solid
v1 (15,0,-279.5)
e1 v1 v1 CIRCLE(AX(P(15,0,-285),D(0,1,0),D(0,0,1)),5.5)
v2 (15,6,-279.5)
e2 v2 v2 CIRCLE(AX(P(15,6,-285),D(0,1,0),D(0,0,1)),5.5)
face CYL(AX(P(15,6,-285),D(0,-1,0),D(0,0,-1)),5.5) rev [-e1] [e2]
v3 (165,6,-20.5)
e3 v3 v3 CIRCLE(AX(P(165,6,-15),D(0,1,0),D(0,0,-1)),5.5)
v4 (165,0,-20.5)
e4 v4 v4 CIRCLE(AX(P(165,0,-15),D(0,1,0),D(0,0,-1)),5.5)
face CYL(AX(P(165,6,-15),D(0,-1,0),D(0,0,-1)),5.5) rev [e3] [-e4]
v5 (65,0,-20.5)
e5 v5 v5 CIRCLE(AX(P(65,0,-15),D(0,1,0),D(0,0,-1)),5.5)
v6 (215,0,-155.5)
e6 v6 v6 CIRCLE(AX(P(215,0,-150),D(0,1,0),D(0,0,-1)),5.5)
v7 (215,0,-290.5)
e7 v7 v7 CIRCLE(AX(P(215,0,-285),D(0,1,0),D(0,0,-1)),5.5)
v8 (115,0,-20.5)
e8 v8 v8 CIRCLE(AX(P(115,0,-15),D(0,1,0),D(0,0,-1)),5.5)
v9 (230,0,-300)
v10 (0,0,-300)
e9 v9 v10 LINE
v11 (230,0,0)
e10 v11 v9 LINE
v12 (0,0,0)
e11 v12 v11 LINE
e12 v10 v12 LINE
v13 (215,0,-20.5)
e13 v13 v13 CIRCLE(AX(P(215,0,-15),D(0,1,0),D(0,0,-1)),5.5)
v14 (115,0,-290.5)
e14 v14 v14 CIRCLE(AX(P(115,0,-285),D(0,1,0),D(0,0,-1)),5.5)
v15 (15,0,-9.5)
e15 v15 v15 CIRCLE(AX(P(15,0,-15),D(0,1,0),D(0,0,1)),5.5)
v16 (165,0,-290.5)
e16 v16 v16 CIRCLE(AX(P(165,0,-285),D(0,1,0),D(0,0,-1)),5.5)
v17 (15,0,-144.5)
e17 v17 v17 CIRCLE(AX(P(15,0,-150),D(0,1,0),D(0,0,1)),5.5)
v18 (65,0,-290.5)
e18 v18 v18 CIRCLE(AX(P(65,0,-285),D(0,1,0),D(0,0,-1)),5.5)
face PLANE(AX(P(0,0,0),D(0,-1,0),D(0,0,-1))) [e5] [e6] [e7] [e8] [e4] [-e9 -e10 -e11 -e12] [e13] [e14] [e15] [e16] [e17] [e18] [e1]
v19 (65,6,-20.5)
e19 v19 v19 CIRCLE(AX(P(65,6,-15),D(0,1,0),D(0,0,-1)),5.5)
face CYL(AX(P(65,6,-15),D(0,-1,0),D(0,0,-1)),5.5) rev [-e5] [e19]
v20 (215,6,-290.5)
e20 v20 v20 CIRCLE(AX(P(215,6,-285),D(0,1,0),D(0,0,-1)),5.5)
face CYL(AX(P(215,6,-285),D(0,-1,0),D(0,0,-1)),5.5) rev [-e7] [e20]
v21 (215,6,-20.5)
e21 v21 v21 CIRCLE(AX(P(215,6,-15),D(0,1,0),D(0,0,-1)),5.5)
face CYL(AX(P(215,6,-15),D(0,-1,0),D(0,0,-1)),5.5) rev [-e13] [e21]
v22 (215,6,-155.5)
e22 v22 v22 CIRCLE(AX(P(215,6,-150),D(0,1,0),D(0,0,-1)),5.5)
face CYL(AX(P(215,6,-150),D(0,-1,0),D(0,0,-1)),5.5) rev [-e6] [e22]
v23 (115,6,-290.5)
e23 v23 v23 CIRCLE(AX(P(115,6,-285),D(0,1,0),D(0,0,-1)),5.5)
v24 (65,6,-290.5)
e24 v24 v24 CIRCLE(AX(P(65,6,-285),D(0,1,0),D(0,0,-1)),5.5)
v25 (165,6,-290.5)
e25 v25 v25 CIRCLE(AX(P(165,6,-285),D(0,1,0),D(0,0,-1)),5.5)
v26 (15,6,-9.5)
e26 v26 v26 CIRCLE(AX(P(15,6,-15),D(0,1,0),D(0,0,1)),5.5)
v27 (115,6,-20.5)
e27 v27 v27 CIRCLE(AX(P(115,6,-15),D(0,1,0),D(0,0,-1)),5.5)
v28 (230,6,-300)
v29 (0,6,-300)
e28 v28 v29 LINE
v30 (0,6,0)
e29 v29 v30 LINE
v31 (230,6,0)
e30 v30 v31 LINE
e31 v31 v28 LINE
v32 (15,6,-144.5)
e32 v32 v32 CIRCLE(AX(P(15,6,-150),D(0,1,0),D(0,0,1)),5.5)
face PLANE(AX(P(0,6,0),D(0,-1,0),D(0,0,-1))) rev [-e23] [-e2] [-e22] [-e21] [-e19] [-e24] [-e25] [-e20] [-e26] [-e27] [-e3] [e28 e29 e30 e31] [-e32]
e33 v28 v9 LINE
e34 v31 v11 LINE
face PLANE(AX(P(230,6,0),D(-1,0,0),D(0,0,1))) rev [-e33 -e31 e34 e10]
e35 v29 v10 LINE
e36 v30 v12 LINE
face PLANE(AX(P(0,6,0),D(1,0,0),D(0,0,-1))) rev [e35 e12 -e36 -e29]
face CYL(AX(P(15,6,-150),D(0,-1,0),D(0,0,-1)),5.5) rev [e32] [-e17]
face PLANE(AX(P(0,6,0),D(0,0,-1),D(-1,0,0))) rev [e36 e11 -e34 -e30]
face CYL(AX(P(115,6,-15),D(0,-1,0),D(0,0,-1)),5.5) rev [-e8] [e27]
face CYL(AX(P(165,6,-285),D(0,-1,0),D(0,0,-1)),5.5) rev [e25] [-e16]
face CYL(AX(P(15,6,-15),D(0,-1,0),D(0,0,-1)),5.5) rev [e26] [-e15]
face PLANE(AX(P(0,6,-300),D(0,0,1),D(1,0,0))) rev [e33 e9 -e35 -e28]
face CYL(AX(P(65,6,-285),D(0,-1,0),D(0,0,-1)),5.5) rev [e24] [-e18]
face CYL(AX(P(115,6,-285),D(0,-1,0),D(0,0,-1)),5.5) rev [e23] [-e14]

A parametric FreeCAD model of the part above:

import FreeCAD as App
import Part
import Sketcher

V = App.Vector
Q = App.Units.Quantity

doc = App.newDocument("Part")
body = doc.addObject("PartDesign::Body", "Body")

sketch1 = body.newObject("Sketcher::SketchObject", "Sketch")
sketch1.AttachmentSupport = (doc.getObject("XZ_Plane"), [""])
sketch1.MapMode = "FlatFace"
sketch1.addGeometry(Part.LineSegment(V(0, -300, 0), V(0, 0, 0)), False)
sketch1.addGeometry(Part.LineSegment(V(0, 0, 0), V(230, 0, 0)), False)
sketch1.addGeometry(Part.LineSegment(V(230, 0, 0), V(230, -300, 0)), False)
sketch1.addGeometry(Part.LineSegment(V(230, -300, 0), V(0, -300, 0)), False)
sketch1.addGeometry(Part.Circle(V(15, -15, 0), V(0, 0, 1), 6), False)
sketch1.addGeometry(Part.Circle(V(65, -15, 0), V(0, 0, 1), 6), False)
sketch1.addGeometry(Part.Circle(V(115, -15, 0), V(0, 0, 1), 6), False)
sketch1.addGeometry(Part.Circle(V(165, -15, 0), V(0, 0, 1), 6), False)
sketch1.addGeometry(Part.Circle(V(215, -15, 0), V(0, 0, 1), 6), False)
sketch1.addGeometry(Part.Circle(V(15, -150, 0), V(0, 0, 1), 6), False)
sketch1.addGeometry(Part.Circle(V(15, -285, 0), V(0, 0, 1), 6), False)
sketch1.addGeometry(Part.Circle(V(65, -285, 0), V(0, 0, 1), 6), False)
sketch1.addGeometry(Part.Circle(V(215, -150, 0), V(0, 0, 1), 6), False)
sketch1.addGeometry(Part.Circle(V(115, -285, 0), V(0, 0, 1), 6), False)
sketch1.addGeometry(Part.Circle(V(165, -285, 0), V(0, 0, 1), 6), False)
sketch1.addGeometry(Part.Circle(V(215, -285, 0), V(0, 0, 1), 6), False)
sketch1.addConstraint(Sketcher.Constraint("Coincident", 0, 2, 1, 1))
sketch1.addConstraint(Sketcher.Constraint("Coincident", 1, 2, 2, 1))
sketch1.addConstraint(Sketcher.Constraint("Coincident", 2, 2, 3, 1))
sketch1.addConstraint(Sketcher.Constraint("Coincident", 3, 2, 0, 1))
sketch1.addConstraint(Sketcher.Constraint("Vertical", 0))
sketch1.addConstraint(Sketcher.Constraint("Horizontal", 1))
sketch1.addConstraint(Sketcher.Constraint("Vertical", 2))
sketch1.addConstraint(Sketcher.Constraint("Horizontal", 3))
sketch1.addConstraint(Sketcher.Constraint("Coincident", 0, 2, -1, 1))
sketch1.addConstraint(Sketcher.Constraint("Equal", 4, 5))
sketch1.addConstraint(Sketcher.Constraint("Equal", 5, 6))
sketch1.addConstraint(Sketcher.Constraint("Equal", 6, 7))
sketch1.addConstraint(Sketcher.Constraint("Equal", 7, 8))
sketch1.addConstraint(Sketcher.Constraint("Equal", 8, 9))
sketch1.addConstraint(Sketcher.Constraint("Equal", 9, 10))
sketch1.addConstraint(Sketcher.Constraint("Equal", 10, 11))
sketch1.addConstraint(Sketcher.Constraint("Equal", 11, 12))
sketch1.addConstraint(Sketcher.Constraint("Equal", 12, 13))
sketch1.addConstraint(Sketcher.Constraint("Equal", 13, 14))
sketch1.addConstraint(Sketcher.Constraint("Equal", 14, 15))
sketch1.addConstraint(Sketcher.Constraint("Horizontal", 4, 3, 5, 3))
sketch1.addConstraint(Sketcher.Constraint("Horizontal", 5, 3, 6, 3))
sketch1.addConstraint(Sketcher.Constraint("Horizontal", 6, 3, 7, 3))
sketch1.addConstraint(Sketcher.Constraint("Horizontal", 7, 3, 8, 3))
sketch1.addConstraint(Sketcher.Constraint("Horizontal", 10, 3, 11, 3))
sketch1.addConstraint(Sketcher.Constraint("Horizontal", 9, 3, 12, 3))
sketch1.addConstraint(Sketcher.Constraint("Horizontal", 11, 3, 13, 3))
sketch1.addConstraint(Sketcher.Constraint("Horizontal", 13, 3, 14, 3))
sketch1.addConstraint(Sketcher.Constraint("Horizontal", 14, 3, 15, 3))
sketch1.addConstraint(Sketcher.Constraint("Vertical", 4, 3, 9, 3))
sketch1.addConstraint(Sketcher.Constraint("Vertical", 9, 3, 10, 3))
sketch1.addConstraint(Sketcher.Constraint("Vertical", 5, 3, 11, 3))
sketch1.addConstraint(Sketcher.Constraint("Vertical", 8, 3, 12, 3))
sketch1.addConstraint(Sketcher.Constraint("Vertical", 6, 3, 13, 3))
sketch1.addConstraint(Sketcher.Constraint("Vertical", 7, 3, 14, 3))
sketch1.addConstraint(Sketcher.Constraint("Vertical", 12, 3, 15, 3))
sketch1.addConstraint(Sketcher.Constraint("Diameter", 4, Q("11 mm")))
sketch1.addConstraint(Sketcher.Constraint("DistanceX", 1, 1, 1, 2, Q("230 mm")))
sketch1.addConstraint(Sketcher.Constraint("DistanceY", 0, 1, 0, 2, Q("300 mm")))
sketch1.addConstraint(Sketcher.Constraint("DistanceX", -1, 1, 4, 3, Q("15 mm")))
sketch1.addConstraint(Sketcher.Constraint("DistanceY", 4, 3, -1, 1, Q("15 mm")))
sketch1.addConstraint(Sketcher.Constraint("DistanceX", -1, 1, 5, 3, Q("65 mm")))
sketch1.addConstraint(Sketcher.Constraint("DistanceX", -1, 1, 6, 3, Q("115 mm")))
sketch1.addConstraint(Sketcher.Constraint("DistanceX", -1, 1, 7, 3, Q("165 mm")))
sketch1.addConstraint(Sketcher.Constraint("DistanceX", -1, 1, 8, 3, Q("215 mm")))
sketch1.addConstraint(Sketcher.Constraint("DistanceY", 9, 3, -1, 1, Q("150 mm")))
sketch1.addConstraint(Sketcher.Constraint("DistanceY", 10, 3, -1, 1, Q("285 mm")))
pad1 = body.newObject("PartDesign::Pad", "Pad")
pad1.Profile = sketch1
pad1.Length = 6
pad1.Reversed = True

doc.recompute()
